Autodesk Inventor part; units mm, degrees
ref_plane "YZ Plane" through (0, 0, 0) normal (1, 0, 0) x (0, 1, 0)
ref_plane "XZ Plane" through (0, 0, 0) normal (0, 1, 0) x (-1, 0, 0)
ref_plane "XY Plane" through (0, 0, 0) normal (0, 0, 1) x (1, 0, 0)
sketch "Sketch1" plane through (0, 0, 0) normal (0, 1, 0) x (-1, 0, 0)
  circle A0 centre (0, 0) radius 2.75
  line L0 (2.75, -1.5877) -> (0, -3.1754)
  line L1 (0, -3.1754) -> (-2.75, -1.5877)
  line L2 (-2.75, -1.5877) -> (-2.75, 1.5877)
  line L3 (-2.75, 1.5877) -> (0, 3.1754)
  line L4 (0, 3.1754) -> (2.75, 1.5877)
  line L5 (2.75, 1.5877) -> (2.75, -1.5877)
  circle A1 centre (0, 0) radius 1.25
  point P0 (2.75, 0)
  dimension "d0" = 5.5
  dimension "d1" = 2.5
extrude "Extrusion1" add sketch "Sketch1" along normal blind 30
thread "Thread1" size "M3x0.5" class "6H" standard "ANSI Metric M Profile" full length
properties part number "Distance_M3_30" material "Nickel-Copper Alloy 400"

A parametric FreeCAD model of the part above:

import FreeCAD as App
import Part
import Sketcher
Q = App.Units.Quantity


def add_polygon(sketch, points):
    """Adds a closed chain of lines whose ends are joined by coincident constraints."""
    first, n = sketch.GeometryCount, len(points)
    for a, b in zip(points, points[1:] + points[:1]):
        sketch.addGeometry(Part.LineSegment(App.Vector(*a, 0), App.Vector(*b, 0)), False)
    for i in range(n):
        sketch.addConstraint(Sketcher.Constraint("Coincident", first + i, 2, first + (i + 1) % n, 1))

doc = App.newDocument("Part")
body = doc.addObject("PartDesign::Body", "Body")

sketch1 = doc.addObject("Sketcher::SketchObject", "Sketch")
body.addObject(sketch1)
sketch1.AttachmentSupport = (doc.XZ_Plane, [""])
sketch1.MapMode = "FlatFace"
add_polygon(sketch1, [(-2.8, -1.6), (-2.8, 1.6), (0, 3.2), (2.8, 1.6), (2.8, -1.6), (0, -3.2)])
sketch1.addGeometry(Part.Circle(App.Vector(0, 0, 0), App.Vector(0, 0, 1), 1.2), False)
sketch1.addConstraint([
    Sketcher.Constraint("Vertical", 0),
    Sketcher.Constraint("Vertical", 3),
    Sketcher.Constraint("Coincident", 6, 3, -1, 1),
    Sketcher.Constraint("Symmetric", 0, 2, 3, 2, -1, 1),
    Sketcher.Constraint("Symmetric", 1, 2, 4, 2, -1, 1),
    Sketcher.Constraint("PointOnObject", 1, 2, -2),
    Sketcher.Constraint("Parallel", 2, 5),
    Sketcher.Constraint("Horizontal", 0, 2, 2, 2),
    Sketcher.Constraint("Diameter", 6, Q("2.5 mm")),
    Sketcher.Constraint("DistanceX", 0, 2, 2, 2, Q("5.5 mm")),
    Sketcher.Constraint("Angle", 1, Q("29.9998 deg")),
    Sketcher.Constraint("DistanceY", 0, 1, 0, 2, Q("3.1754 mm")),
])
pad1 = doc.addObject("PartDesign::Pad", "Pad")
body.addObject(pad1)
pad1.Profile = sketch1
pad1.Length = 30
pad1.Reversed = True

doc.recompute()
